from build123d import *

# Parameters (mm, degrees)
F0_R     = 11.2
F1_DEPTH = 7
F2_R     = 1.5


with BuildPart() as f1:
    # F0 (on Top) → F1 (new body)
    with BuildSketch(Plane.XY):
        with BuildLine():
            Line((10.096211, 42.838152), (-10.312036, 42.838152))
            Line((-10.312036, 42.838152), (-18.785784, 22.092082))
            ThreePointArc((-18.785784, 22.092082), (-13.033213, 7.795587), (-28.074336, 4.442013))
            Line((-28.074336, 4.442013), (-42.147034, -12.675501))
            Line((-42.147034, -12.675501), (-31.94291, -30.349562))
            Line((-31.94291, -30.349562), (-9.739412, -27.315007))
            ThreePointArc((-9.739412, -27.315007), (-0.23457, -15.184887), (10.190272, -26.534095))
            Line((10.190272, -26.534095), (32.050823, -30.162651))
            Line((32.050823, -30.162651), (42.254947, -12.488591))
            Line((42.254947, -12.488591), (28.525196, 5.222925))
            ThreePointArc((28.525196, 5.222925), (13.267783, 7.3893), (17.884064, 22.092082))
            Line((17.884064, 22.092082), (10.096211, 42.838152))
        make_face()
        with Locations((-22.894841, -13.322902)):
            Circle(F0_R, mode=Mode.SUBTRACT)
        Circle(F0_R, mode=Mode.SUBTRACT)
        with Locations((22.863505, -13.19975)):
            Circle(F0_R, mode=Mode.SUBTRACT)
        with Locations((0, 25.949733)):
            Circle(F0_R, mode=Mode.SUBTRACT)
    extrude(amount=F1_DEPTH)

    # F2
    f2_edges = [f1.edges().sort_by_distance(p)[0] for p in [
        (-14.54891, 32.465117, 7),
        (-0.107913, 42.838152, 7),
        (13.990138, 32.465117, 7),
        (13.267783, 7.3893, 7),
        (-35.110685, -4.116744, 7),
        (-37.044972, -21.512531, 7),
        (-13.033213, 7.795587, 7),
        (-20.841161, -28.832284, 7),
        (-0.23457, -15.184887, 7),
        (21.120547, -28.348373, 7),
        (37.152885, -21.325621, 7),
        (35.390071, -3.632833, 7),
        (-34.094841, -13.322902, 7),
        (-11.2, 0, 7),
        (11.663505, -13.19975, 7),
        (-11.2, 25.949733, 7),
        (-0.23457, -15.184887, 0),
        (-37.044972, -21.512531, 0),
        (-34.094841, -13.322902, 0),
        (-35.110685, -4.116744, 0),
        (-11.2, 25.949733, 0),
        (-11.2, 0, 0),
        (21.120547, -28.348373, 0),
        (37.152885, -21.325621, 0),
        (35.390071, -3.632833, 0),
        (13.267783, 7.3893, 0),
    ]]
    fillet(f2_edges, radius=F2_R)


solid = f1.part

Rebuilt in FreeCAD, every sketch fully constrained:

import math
import FreeCAD as App
import Part
import Sketcher
Q = App.Units.Quantity


def edges_at(feature, points):
    """Names of the edges that pass closest to the given points."""
    edges = feature.Shape.Edges
    near = lambda p: min(range(len(edges)), key=lambda i: edges[i].distToShape(Part.Vertex(*p))[0])
    return sorted({f"Edge{near(p) + 1}" for p in points})

doc = App.newDocument("Part")
body = doc.addObject("PartDesign::Body", "Body")

# Sketch on XY plane
sketch1 = body.newObject("Sketcher::SketchObject", "Sketch")
sketch1.AttachmentSupport = (doc.getObject("XY_Plane"), [""])
sketch1.MapMode = "FlatFace"
sketch1.addGeometry([
    Part.LineSegment(App.Vector(10, 43, 0), App.Vector(-10, 43, 0)),  # 0
    Part.LineSegment(App.Vector(-10, 43, 0), App.Vector(-19, 22, 0)),  # 1
    Part.ArcOfCircle(Part.Circle(App.Vector(-22, 13, 0), App.Vector(0, 0, 1), 10), math.radians(-127), math.radians(72)),  # 2
    Part.LineSegment(App.Vector(-28, 4, 0), App.Vector(-42, -13, 0)),  # 3
    Part.LineSegment(App.Vector(-42, -13, 0), App.Vector(-32, -30, 0)),  # 4
    Part.LineSegment(App.Vector(-32, -30, 0), App.Vector(-10, -27, 0)),  # 5
    Part.ArcOfCircle(Part.Circle(App.Vector(0, -25, 0), App.Vector(0, 0, 1), 10), math.radians(-7), math.radians(192)),  # 6
    Part.LineSegment(App.Vector(10, -27, 0), App.Vector(32, -30, 0)),  # 7
    Part.LineSegment(App.Vector(32, -30, 0), App.Vector(42, -12, 0)),  # 8
    Part.LineSegment(App.Vector(42, -12, 0), App.Vector(29, 5, 0)),  # 9
    Part.ArcOfCircle(Part.Circle(App.Vector(22, 13, 0), App.Vector(0, 0, 1), 10), math.radians(113), math.radians(312)),  # 10
    Part.LineSegment(App.Vector(18, 22, 0), App.Vector(10, 43, 0)),  # 11
    Part.Circle(App.Vector(-23, -13, 0), App.Vector(0, 0, 1), 11),  # 12
    Part.Circle(App.Vector(23, -13, 0), App.Vector(0, 0, 1), 11),  # 13
    Part.Circle(App.Vector(0, 0, 0), App.Vector(0, 0, 1), 11),  # 14
    Part.Circle(App.Vector(0, 26, 0), App.Vector(0, 0, 1), 11),  # 15
], False)
sketch1.addConstraint([
    Sketcher.Constraint("Coincident", 0, 2, 1, 1),
    Sketcher.Constraint("Coincident", 1, 2, 2, 2),
    Sketcher.Constraint("Coincident", 2, 1, 3, 1),
    Sketcher.Constraint("Coincident", 3, 2, 4, 1),
    Sketcher.Constraint("Coincident", 4, 2, 5, 1),
    Sketcher.Constraint("Coincident", 5, 2, 6, 2),
    Sketcher.Constraint("Coincident", 6, 1, 7, 1),
    Sketcher.Constraint("Coincident", 7, 2, 8, 1),
    Sketcher.Constraint("Coincident", 8, 2, 9, 1),
    Sketcher.Constraint("Coincident", 9, 2, 10, 2),
    Sketcher.Constraint("Coincident", 10, 1, 11, 1),
    Sketcher.Constraint("Coincident", 11, 2, 0, 1),
    Sketcher.Constraint("Horizontal", 0),
    Sketcher.Constraint("Coincident", 14, 3, -1, 1),
    Sketcher.Constraint("Equal", 2, 6),
    Sketcher.Constraint("Equal", 6, 10),
    Sketcher.Constraint("Equal", 12, 13),
    Sketcher.Constraint("Equal", 13, 14),
    Sketcher.Constraint("Equal", 14, 15),
    Sketcher.Constraint("PointOnObject", 15, 3, -2),
    Sketcher.Constraint("Horizontal", 1, 2, 10, 1),
    Sketcher.Constraint("Equal", 1, 5),
    Sketcher.Constraint("Equal", 3, 7),
    Sketcher.Constraint("Equal", 4, 8),
    Sketcher.Constraint("Equal", 5, 9),
    Sketcher.Constraint("Equal", 7, 11),
    Sketcher.Constraint("Diameter", 12, 22.4),
    Sketcher.Constraint("Angle", 4, Q("-60 deg")),
    Sketcher.Constraint("Angle", 8, Q("59.999998 deg")),
    Sketcher.Constraint("Radius", 6, 10.106752),
    Sketcher.Constraint("DistanceY", -1, 1, 10, 3, 12.781499),
    Sketcher.Constraint("DistanceY", 12, 3, -1, 1, 13.322902),
    Sketcher.Constraint("DistanceY", 3, 2, -1, 1, 12.675501),
    Sketcher.Constraint("DistanceX", 3, 2, 2, 1, 14.072698),
    Sketcher.Constraint("DistanceX", 4, 2, 5, 2, 22.203498),
    Sketcher.Constraint("DistanceY", 7, 2, 13, 3, 16.962901),
    Sketcher.Constraint("DistanceY", 6, 3, 8, 2, 12.795298),
    Sketcher.Constraint("DistanceX", 0, 2, 10, 1, 28.1961),
    Sketcher.Constraint("Distance", 3, 22.159651),
    Sketcher.Constraint("DistanceX", 0, 2, 0, 1, 20.408247),
    Sketcher.Constraint("DistanceY", -1, 1, 2, 3, 12.502391),
    Sketcher.Constraint("DistanceY", 6, 3, -1, 1, 25.283889),
    Sketcher.Constraint("DistanceX", -1, 1, 10, 3, 21.815919),
    Sketcher.Constraint("DistanceX", 12, 3, -1, 1, 22.894841),
    Sketcher.Constraint("DistanceY", 13, 3, -1, 1, 13.19975),
    Sketcher.Constraint("DistanceX", 4, 2, -1, 1, 31.94291),
    Sketcher.Constraint("DistanceX", -1, 1, 6, 1, 10.190272),
    Sketcher.Constraint("DistanceX", -1, 1, 11, 2, 10.096211),
    Sketcher.Constraint("DistanceX", 6, 3, 13, 3, 22.702362),
    Sketcher.Constraint("DistanceY", 15, 3, 0, 2, 16.888419),
])
pad1 = body.newObject("PartDesign::Pad", "Pad")
pad1.Profile = sketch1
pad1.Length = 7
doc.recompute()

fillet = body.newObject("PartDesign::Fillet", "Fillet")
fillet.Base = (pad1, edges_at(pad1, [
    (-14.549, 32.465, 7),
    (-0.108, 42.838, 7),
    (13.99, 32.465, 7),
    (13.268, 7.389, 7),
    (-35.111, -4.117, 7),
    (-37.045, -21.513, 7),
    (-13.033, 7.796, 7),
    (-20.841, -28.832, 7),
    (-0.235, -15.185, 7),
    (21.121, -28.348, 7),
    (37.153, -21.326, 7),
    (35.39, -3.633, 7),
    (-34.095, -13.323, 7),
    (-11.2, 0, 7),
    (11.664, -13.2, 7),
    (-11.2, 25.95, 7),
    (-0.235, -15.185, 0),
    (-37.045, -21.513, 0),
    (-34.095, -13.323, 0),
    (-35.111, -4.117, 0),
    (-11.2, 25.95, 0),
    (-11.2, 0, 0),
    (21.121, -28.348, 0),
    (37.153, -21.326, 0),
    (35.39, -3.633, 0),
    (13.268, 7.389, 0),
]))
fillet.Radius = 1.5

doc.recompute()
